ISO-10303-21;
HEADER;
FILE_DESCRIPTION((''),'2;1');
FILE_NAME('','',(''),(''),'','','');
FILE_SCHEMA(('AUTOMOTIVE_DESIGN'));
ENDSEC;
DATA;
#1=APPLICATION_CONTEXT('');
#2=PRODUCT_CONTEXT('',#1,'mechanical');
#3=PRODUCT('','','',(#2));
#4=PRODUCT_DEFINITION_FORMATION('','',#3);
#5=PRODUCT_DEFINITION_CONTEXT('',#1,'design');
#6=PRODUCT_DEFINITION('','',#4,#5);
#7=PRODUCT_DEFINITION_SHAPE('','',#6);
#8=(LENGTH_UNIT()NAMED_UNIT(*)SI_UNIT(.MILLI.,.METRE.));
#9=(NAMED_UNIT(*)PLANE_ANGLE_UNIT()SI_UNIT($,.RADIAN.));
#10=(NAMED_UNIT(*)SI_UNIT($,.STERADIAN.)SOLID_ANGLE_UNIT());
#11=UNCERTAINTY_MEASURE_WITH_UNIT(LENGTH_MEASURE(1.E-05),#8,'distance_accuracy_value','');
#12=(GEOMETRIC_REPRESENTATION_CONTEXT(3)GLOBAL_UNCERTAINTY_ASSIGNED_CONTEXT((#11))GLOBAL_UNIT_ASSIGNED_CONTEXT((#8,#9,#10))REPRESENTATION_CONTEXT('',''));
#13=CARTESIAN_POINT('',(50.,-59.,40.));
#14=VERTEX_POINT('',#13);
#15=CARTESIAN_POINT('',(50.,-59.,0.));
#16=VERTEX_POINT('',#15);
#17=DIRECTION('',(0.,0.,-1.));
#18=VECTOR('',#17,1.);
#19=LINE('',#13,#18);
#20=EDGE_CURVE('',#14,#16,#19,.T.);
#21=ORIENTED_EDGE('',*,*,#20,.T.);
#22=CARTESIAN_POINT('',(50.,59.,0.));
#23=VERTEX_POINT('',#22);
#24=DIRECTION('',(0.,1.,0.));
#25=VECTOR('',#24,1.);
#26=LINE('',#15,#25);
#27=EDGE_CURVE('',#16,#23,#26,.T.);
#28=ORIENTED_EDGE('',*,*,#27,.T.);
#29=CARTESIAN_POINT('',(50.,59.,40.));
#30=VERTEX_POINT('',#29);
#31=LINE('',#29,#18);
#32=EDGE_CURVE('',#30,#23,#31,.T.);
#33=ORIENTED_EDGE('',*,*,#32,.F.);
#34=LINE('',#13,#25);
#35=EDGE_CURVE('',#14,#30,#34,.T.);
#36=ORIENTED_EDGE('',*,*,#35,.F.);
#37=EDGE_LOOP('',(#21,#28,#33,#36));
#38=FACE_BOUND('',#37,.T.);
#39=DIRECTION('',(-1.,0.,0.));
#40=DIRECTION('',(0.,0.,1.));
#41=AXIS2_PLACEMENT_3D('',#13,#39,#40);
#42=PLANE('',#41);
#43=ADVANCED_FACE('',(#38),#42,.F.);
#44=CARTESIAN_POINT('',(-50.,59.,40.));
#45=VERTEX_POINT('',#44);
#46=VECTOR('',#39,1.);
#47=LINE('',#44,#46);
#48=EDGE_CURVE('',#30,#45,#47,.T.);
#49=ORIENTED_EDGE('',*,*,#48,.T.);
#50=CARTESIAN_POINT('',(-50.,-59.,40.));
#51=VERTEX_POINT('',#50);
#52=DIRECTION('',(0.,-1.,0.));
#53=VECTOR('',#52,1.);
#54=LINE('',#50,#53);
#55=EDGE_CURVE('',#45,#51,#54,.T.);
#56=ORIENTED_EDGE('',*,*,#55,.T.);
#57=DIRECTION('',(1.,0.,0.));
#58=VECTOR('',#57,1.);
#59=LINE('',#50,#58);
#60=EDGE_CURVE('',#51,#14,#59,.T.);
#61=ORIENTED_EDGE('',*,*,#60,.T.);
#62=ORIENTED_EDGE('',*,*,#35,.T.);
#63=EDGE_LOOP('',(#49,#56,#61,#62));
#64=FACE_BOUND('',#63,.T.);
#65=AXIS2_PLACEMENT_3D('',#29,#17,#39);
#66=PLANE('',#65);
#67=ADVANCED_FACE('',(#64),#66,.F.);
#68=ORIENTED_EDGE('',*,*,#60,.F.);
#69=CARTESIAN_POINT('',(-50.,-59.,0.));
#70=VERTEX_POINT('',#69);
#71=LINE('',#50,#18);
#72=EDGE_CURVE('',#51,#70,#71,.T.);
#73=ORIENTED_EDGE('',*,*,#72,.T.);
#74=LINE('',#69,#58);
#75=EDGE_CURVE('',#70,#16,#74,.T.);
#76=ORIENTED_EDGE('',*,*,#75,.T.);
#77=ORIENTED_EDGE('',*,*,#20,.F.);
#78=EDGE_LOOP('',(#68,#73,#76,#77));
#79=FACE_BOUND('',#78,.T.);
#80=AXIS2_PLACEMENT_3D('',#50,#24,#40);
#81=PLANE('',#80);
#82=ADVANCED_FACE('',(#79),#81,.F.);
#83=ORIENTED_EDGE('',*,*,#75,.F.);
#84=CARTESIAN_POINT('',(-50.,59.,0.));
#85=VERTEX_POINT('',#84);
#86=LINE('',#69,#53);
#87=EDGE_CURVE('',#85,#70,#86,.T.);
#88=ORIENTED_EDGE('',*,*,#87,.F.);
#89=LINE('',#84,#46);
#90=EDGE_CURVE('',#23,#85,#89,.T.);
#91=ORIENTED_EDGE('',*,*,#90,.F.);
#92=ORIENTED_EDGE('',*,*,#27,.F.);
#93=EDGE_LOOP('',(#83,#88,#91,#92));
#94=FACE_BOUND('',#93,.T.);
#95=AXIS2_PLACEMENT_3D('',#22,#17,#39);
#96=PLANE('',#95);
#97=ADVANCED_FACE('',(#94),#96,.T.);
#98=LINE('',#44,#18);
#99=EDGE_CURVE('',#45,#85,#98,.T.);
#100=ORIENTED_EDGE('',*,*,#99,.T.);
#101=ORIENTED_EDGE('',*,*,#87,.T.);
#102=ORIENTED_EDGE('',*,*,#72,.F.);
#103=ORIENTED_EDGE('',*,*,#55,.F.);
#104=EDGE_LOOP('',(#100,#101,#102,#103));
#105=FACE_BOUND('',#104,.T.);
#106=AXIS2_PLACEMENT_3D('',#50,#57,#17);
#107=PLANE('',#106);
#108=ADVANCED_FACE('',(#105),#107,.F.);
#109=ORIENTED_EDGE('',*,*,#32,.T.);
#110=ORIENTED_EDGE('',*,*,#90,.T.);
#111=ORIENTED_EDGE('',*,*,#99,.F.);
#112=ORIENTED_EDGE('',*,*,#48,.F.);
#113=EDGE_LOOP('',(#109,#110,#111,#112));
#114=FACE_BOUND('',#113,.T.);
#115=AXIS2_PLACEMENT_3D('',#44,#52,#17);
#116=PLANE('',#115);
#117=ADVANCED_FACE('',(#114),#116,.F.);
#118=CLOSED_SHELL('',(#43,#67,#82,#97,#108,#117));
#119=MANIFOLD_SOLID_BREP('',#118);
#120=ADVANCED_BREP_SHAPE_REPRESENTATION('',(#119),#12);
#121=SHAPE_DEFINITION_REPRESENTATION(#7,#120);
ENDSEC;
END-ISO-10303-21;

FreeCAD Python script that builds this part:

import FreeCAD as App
import Part
import Sketcher

doc = App.newDocument("Part")
body = doc.addObject("PartDesign::Body", "Body")

# Sketch on XY plane
sketch1 = body.newObject("Sketcher::SketchObject", "Sketch")
sketch1.AttachmentSupport = (doc.getObject("XY_Plane"), [""])
sketch1.MapMode = "FlatFace"
sketch1.addGeometry([
    Part.LineSegment(App.Vector(-50, 59, 0), App.Vector(-50, -59, 0)),
    Part.LineSegment(App.Vector(-50, -59, 0), App.Vector(50, -59, 0)),
    Part.LineSegment(App.Vector(50, -59, 0), App.Vector(50, 59, 0)),
    Part.LineSegment(App.Vector(50, 59, 0), App.Vector(-50, 59, 0)),
], False)
sketch1.addConstraint([
    Sketcher.Constraint("Coincident", 0, 2, 1, 1),
    Sketcher.Constraint("Coincident", 1, 2, 2, 1),
    Sketcher.Constraint("Coincident", 2, 2, 3, 1),
    Sketcher.Constraint("Coincident", 3, 2, 0, 1),
    Sketcher.Constraint("Vertical", 0),
    Sketcher.Constraint("Horizontal", 1),
    Sketcher.Constraint("Vertical", 2),
    Sketcher.Constraint("Horizontal", 3),
    Sketcher.Constraint("Symmetric", 0, 2, 2, 2, -1, 1),
    Sketcher.Constraint("DistanceX", 1, 1, 1, 2, 100.0),
    Sketcher.Constraint("DistanceY", 0, 2, 0, 1, 118.0),
])
pad1 = body.newObject("PartDesign::Pad", "Pad")
pad1.Profile = sketch1
pad1.Length = 40

doc.recompute()
